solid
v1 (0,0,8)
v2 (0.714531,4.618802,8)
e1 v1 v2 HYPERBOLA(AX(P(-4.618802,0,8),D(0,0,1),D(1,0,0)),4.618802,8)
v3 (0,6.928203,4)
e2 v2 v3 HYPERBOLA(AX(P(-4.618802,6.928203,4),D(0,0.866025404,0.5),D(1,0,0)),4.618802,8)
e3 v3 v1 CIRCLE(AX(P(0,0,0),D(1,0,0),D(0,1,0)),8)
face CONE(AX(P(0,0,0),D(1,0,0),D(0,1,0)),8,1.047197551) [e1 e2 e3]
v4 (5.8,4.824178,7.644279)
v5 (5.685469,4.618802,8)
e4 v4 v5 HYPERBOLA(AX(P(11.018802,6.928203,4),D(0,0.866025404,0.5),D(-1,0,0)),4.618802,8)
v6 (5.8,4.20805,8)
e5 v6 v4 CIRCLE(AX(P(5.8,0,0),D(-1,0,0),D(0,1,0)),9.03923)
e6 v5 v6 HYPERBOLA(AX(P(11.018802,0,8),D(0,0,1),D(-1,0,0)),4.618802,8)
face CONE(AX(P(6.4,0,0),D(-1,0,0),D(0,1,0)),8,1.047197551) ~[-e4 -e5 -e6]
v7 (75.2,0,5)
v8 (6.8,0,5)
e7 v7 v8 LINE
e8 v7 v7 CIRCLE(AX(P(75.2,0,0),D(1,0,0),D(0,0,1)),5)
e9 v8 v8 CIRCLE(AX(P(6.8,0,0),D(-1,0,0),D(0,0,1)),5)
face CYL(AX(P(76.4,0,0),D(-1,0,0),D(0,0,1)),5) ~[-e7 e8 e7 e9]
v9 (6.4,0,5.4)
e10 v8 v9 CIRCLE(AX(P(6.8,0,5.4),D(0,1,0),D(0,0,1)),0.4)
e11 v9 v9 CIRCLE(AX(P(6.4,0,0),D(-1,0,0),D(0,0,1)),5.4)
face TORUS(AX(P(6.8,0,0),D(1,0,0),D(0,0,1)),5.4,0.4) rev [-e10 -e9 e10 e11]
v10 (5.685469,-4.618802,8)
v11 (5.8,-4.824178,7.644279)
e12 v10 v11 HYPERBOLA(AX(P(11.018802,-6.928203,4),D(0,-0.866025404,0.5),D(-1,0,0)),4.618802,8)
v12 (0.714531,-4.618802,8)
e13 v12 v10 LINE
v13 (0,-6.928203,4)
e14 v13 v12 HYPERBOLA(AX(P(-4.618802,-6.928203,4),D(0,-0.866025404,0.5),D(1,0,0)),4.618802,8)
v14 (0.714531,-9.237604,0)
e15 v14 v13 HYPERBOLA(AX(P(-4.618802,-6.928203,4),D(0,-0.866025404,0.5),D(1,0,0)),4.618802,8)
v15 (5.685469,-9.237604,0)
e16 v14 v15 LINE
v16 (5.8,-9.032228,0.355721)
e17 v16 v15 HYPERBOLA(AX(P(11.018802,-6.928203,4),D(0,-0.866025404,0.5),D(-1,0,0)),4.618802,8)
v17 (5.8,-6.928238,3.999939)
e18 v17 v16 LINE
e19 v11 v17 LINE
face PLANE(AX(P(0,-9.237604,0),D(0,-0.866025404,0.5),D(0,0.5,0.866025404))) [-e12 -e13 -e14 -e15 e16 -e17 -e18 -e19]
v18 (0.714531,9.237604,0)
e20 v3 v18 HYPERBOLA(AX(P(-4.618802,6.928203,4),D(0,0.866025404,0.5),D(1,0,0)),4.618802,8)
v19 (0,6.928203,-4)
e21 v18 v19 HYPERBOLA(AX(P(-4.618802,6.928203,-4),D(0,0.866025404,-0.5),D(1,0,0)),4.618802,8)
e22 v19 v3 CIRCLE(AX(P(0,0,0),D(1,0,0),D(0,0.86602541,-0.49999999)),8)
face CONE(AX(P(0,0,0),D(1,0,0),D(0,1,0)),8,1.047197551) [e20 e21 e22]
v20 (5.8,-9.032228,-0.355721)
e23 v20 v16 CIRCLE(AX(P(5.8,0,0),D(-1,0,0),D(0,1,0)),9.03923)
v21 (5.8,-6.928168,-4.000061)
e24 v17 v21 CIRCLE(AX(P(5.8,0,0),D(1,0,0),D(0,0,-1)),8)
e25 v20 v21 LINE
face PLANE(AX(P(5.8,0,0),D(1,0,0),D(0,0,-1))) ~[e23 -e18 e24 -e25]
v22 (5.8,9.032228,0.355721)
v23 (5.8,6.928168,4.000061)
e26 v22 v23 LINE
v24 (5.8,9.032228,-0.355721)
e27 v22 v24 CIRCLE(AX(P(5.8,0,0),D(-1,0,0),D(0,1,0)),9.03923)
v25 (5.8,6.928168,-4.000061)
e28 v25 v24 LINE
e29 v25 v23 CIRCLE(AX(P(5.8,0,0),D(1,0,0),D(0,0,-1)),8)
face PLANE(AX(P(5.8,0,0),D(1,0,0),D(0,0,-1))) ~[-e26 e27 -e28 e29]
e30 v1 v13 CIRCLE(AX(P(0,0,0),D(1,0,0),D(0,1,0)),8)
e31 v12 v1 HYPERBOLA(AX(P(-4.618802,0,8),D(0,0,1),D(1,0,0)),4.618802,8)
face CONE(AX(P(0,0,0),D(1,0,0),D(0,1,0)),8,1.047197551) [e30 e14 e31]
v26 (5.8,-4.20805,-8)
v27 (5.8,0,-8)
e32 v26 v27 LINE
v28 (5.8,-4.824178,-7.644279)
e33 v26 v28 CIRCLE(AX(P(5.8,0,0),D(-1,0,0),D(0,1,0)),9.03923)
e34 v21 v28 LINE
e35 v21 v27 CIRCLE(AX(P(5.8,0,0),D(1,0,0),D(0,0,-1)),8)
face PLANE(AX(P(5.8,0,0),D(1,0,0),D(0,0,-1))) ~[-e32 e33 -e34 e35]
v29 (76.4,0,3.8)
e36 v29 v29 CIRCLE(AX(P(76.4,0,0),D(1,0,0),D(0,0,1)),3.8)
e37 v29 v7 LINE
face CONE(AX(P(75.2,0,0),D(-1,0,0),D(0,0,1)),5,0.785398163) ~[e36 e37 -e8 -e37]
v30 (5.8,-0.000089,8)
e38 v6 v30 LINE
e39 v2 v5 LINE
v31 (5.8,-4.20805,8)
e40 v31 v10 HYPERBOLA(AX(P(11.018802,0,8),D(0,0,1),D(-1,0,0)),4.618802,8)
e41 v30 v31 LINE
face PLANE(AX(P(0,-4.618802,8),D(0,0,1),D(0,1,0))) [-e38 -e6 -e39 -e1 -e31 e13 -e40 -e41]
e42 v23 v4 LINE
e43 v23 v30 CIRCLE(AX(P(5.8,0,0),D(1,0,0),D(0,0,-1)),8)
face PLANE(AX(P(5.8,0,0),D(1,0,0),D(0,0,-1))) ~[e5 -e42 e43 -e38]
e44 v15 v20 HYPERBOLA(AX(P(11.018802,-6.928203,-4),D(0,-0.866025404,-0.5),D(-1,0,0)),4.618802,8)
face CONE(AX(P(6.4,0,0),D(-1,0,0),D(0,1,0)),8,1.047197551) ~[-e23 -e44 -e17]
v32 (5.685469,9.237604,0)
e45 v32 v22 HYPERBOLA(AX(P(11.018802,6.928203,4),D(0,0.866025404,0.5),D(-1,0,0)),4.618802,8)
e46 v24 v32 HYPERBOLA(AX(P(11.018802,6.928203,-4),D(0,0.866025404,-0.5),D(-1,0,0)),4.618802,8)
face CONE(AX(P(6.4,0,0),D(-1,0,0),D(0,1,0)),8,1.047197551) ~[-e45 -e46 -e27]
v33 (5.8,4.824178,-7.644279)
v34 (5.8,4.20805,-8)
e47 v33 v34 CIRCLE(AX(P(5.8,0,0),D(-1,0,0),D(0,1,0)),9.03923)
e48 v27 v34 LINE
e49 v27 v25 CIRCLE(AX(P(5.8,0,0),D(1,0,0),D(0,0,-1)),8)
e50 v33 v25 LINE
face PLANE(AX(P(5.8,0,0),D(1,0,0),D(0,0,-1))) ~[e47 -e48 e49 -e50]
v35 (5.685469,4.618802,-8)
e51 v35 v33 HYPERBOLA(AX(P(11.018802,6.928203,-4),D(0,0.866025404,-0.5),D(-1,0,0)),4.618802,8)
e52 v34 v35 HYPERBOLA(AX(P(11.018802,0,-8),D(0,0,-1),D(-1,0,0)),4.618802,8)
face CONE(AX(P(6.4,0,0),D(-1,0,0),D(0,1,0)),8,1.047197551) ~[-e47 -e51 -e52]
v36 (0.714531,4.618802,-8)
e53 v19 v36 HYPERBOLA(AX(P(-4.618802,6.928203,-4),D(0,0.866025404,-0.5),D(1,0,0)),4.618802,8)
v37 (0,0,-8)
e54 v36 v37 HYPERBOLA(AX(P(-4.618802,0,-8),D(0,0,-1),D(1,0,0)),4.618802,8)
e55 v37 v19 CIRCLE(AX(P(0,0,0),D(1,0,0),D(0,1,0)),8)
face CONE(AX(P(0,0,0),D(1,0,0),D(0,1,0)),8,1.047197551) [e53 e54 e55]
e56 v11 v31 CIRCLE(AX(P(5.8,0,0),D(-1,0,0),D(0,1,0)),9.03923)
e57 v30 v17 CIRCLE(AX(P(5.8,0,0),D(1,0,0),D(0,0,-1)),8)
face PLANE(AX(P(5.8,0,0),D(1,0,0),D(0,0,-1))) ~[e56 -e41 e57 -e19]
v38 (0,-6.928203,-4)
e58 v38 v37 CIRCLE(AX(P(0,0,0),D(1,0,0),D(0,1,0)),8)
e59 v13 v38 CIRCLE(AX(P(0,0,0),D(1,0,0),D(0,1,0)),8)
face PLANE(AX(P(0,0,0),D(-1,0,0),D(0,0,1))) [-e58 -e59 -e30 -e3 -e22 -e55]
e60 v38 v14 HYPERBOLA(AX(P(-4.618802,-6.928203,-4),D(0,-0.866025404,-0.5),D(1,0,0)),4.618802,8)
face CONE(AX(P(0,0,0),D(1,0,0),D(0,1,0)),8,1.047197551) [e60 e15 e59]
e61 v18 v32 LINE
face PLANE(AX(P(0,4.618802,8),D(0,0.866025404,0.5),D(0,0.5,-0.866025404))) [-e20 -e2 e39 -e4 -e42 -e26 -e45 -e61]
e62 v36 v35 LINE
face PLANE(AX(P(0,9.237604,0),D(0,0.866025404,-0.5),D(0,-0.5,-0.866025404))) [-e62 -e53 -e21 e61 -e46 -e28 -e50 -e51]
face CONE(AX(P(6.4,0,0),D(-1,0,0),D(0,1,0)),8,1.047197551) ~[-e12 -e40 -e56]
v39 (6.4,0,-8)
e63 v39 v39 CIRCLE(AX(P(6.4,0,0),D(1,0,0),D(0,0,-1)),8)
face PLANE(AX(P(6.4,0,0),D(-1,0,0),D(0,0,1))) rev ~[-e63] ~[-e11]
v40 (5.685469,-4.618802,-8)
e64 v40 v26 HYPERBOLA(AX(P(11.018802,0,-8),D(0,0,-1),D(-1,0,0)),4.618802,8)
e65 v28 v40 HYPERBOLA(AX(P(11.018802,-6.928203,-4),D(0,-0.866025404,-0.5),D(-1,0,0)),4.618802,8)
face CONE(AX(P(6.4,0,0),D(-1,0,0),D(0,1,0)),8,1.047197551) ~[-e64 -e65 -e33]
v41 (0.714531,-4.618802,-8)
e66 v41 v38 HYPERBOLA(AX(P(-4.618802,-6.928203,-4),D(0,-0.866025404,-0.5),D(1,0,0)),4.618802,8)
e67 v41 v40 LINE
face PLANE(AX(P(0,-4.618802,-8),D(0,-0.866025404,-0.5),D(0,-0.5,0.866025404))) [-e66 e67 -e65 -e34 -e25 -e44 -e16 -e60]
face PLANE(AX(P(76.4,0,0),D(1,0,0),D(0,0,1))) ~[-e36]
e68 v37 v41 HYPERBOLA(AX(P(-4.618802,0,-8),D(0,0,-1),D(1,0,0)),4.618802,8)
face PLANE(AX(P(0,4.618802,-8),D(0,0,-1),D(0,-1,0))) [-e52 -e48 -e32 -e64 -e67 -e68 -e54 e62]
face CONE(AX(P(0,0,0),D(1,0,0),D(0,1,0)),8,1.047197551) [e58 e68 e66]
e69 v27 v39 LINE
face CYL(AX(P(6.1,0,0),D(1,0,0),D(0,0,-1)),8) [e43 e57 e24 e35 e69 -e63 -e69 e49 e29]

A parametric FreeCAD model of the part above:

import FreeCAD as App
import Part
import Sketcher
from FreeCAD import Vector
Q = App.Units.Quantity


def edges_at(feature, points):
    """Names of the edges that pass closest to the given points."""
    edges = feature.Shape.Edges
    near = lambda p: min(range(len(edges)), key=lambda i: edges[i].distToShape(Part.Vertex(*p))[0])
    return sorted({f"Edge{near(p) + 1}" for p in points})

doc = App.newDocument("Part")
body = doc.addObject("PartDesign::Body", "Body")

# Sketch on YZ plane
sketch1 = body.newObject("Sketcher::SketchObject", "Sketch")
sketch1.AttachmentSupport = (doc.getObject("YZ_Plane"), [""])
sketch1.MapMode = "FlatFace"
sketch1.addGeometry([
    Part.LineSegment(Vector(-5, -8, 0), Vector(5, -8, 0)),  # 0
    Part.LineSegment(Vector(5, -8, 0), Vector(9, 0, 0)),  # 1
    Part.LineSegment(Vector(9, 0, 0), Vector(5, 8, 0)),  # 2
    Part.LineSegment(Vector(5, 8, 0), Vector(-5, 8, 0)),  # 3
    Part.LineSegment(Vector(-5, 8, 0), Vector(-9, 0, 0)),  # 4
    Part.LineSegment(Vector(-9, 0, 0), Vector(-5, -8, 0)),  # 5
], False)
sketch1.addConstraint([
    Sketcher.Constraint("Coincident", 0, 2, 1, 1),
    Sketcher.Constraint("Coincident", 1, 2, 2, 1),
    Sketcher.Constraint("Coincident", 2, 2, 3, 1),
    Sketcher.Constraint("Coincident", 3, 2, 4, 1),
    Sketcher.Constraint("Coincident", 4, 2, 5, 1),
    Sketcher.Constraint("Coincident", 5, 2, 0, 1),
    Sketcher.Constraint("Horizontal", 0),
    Sketcher.Constraint("Horizontal", 3),
    Sketcher.Constraint("Symmetric", 0, 2, 3, 2, -1, 1),
    Sketcher.Constraint("Symmetric", 1, 2, 4, 2, -1, 1),
    Sketcher.Constraint("PointOnObject", 1, 2, -1),
    Sketcher.Constraint("Parallel", 2, 5),
    Sketcher.Constraint("Vertical", 0, 2, 2, 2),
    Sketcher.Constraint("Angle", 1, Q("60 deg")),
    Sketcher.Constraint("DistanceY", 0, 2, -1, 1, 8.0),
    Sketcher.Constraint("DistanceX", 0, 1, 0, 2, 9.237604),
])
pad1 = body.newObject("PartDesign::Pad", "Pad")
pad1.Profile = sketch1
pad1.Length = 6.4

# Sketch on XY plane
sketch2 = body.newObject("Sketcher::SketchObject", "Sketch001")
sketch2.AttachmentSupport = (doc.getObject("XY_Plane"), [""])
sketch2.MapMode = "FlatFace"
sketch2.addGeometry([
    Part.LineSegment(Vector(0, 0, 0), Vector(76, 0, 0)),
    Part.LineSegment(Vector(76, 0, 0), Vector(76, 5, 0)),
    Part.LineSegment(Vector(76, 5, 0), Vector(0, 5, 0)),
    Part.LineSegment(Vector(0, 5, 0), Vector(0, 0, 0)),
], False)
sketch2.addConstraint([
    Sketcher.Constraint("Coincident", 0, 2, 1, 1),
    Sketcher.Constraint("Coincident", 1, 2, 2, 1),
    Sketcher.Constraint("Coincident", 2, 2, 3, 1),
    Sketcher.Constraint("Coincident", 3, 2, 0, 1),
    Sketcher.Constraint("Horizontal", 0),
    Sketcher.Constraint("Vertical", 1),
    Sketcher.Constraint("Horizontal", 2),
    Sketcher.Constraint("Vertical", 3),
    Sketcher.Constraint("Coincident", 3, 2, -1, 1),
    Sketcher.Constraint("DistanceY", 1, 1, 1, 2, 5.0),
    Sketcher.Constraint("DistanceX", 0, 1, 0, 2, 76.4),
])
revolution = body.newObject("PartDesign::Revolution", "Revolution")
revolution.Profile = sketch2
revolution.ReferenceAxis = (sketch2, ["H_Axis"])
revolution.Angle = 360

# Sketch on XY plane
sketch3 = body.newObject("Sketcher::SketchObject", "Sketch002")
sketch3.AttachmentSupport = (doc.getObject("XY_Plane"), [""])
sketch3.MapMode = "FlatFace"
sketch3.addGeometry([
    Part.LineSegment(Vector(0, 8, 0), Vector(4, 14, 0)),  # 0
    Part.LineSegment(Vector(4, 14, 0), Vector(4, 19, 0)),  # 1
    Part.LineSegment(Vector(4, 19, 0), Vector(-10, 19, 0)),  # 2
    Part.LineSegment(Vector(-10, 19, 0), Vector(-10, 8, 0)),  # 3
    Part.LineSegment(Vector(-10, 8, 0), Vector(0, 8, 0)),  # 4
], False)
sketch3.addConstraint([
    Sketcher.Constraint("Coincident", 0, 2, 1, 1),
    Sketcher.Constraint("Coincident", 1, 2, 2, 1),
    Sketcher.Constraint("Coincident", 2, 2, 3, 1),
    Sketcher.Constraint("Coincident", 3, 2, 4, 1),
    Sketcher.Constraint("Coincident", 4, 2, 0, 1),
    Sketcher.Constraint("Vertical", 1),
    Sketcher.Constraint("Horizontal", 2),
    Sketcher.Constraint("Vertical", 3),
    Sketcher.Constraint("Horizontal", 4),
    Sketcher.Constraint("PointOnObject", 4, 2, -2),
    Sketcher.Constraint("DistanceX", 4, 1, 4, 2, 10.0),
    Sketcher.Constraint("DistanceY", 1, 1, 1, 2, 5.0),
    Sketcher.Constraint("Angle", 0, Q("60 deg")),
    Sketcher.Constraint("DistanceY", -1, 1, 3, 2, 8.0),
    Sketcher.Constraint("DistanceX", 2, 2, 2, 1, 13.601283),
])
groove = body.newObject("PartDesign::Groove", "Groove")
groove.Profile = sketch3
groove.ReferenceAxis = (sketch3, ["H_Axis"])
groove.Angle = 360

# Sketch on XY plane
sketch4 = body.newObject("Sketcher::SketchObject", "Sketch003")
sketch4.AttachmentSupport = (doc.getObject("XY_Plane"), [""])
sketch4.MapMode = "FlatFace"
sketch4.addGeometry([
    Part.LineSegment(Vector(3, 14, 0), Vector(6, 8, 0)),  # 0
    Part.LineSegment(Vector(6, 8, 0), Vector(13, 8, 0)),  # 1
    Part.LineSegment(Vector(13, 8, 0), Vector(13, 19, 0)),  # 2
    Part.LineSegment(Vector(13, 19, 0), Vector(3, 19, 0)),  # 3
    Part.LineSegment(Vector(3, 19, 0), Vector(3, 14, 0)),  # 4
], False)
sketch4.addConstraint([
    Sketcher.Constraint("Coincident", 0, 2, 1, 1),
    Sketcher.Constraint("Coincident", 1, 2, 2, 1),
    Sketcher.Constraint("Coincident", 2, 2, 3, 1),
    Sketcher.Constraint("Coincident", 3, 2, 4, 1),
    Sketcher.Constraint("Coincident", 4, 2, 0, 1),
    Sketcher.Constraint("Horizontal", 1),
    Sketcher.Constraint("Vertical", 2),
    Sketcher.Constraint("Horizontal", 3),
    Sketcher.Constraint("Vertical", 4),
    Sketcher.Constraint("DistanceX", 3, 2, 3, 1, 10.0),
    Sketcher.Constraint("DistanceY", 4, 2, 4, 1, 5.0),
    Sketcher.Constraint("Angle", 0, Q("-60 deg")),
    Sketcher.Constraint("DistanceY", -1, 1, 0, 2, 8.0),
    Sketcher.Constraint("DistanceX", -1, 1, 0, 2, 6.4),
    Sketcher.Constraint("DistanceX", 1, 1, 1, 2, 6.398717),
])
groove2 = body.newObject("PartDesign::Groove", "Groove001")
groove2.Profile = sketch4
groove2.ReferenceAxis = (sketch4, ["H_Axis"])
groove2.Angle = 360

# Sketch on XY plane
sketch5 = body.newObject("Sketcher::SketchObject", "Sketch004")
sketch5.AttachmentSupport = (doc.getObject("XY_Plane"), [""])
sketch5.MapMode = "FlatFace"
sketch5.addGeometry([
    Part.LineSegment(Vector(5.8, 19.2, 0), Vector(5.8, 8, 0)),
    Part.LineSegment(Vector(5.8, 8, 0), Vector(6.4, 8, 0)),
    Part.LineSegment(Vector(6.4, 8, 0), Vector(6.4, 19.2, 0)),
    Part.LineSegment(Vector(6.4, 19.2, 0), Vector(5.8, 19.2, 0)),
], False)
sketch5.addConstraint([
    Sketcher.Constraint("Coincident", 0, 2, 1, 1),
    Sketcher.Constraint("Coincident", 1, 2, 2, 1),
    Sketcher.Constraint("Coincident", 2, 2, 3, 1),
    Sketcher.Constraint("Coincident", 3, 2, 0, 1),
    Sketcher.Constraint("Vertical", 0),
    Sketcher.Constraint("Horizontal", 1),
    Sketcher.Constraint("Vertical", 2),
    Sketcher.Constraint("Horizontal", 3),
    Sketcher.Constraint("DistanceX", 1, 1, 1, 2, 0.6),
    Sketcher.Constraint("DistanceY", -1, 1, 0, 2, 8.0),
    Sketcher.Constraint("DistanceX", -1, 1, 0, 2, 5.8),
    Sketcher.Constraint("DistanceY", 0, 2, 0, 1, 11.237604),
])
groove3 = body.newObject("PartDesign::Groove", "Groove002")
groove3.Profile = sketch5
groove3.ReferenceAxis = (sketch5, ["H_Axis"])
groove3.Angle = 360
doc.recompute()

chamfer = body.newObject("PartDesign::Chamfer", "Chamfer")
chamfer.Base = (groove3, edges_at(groove3, [(76.4, 0, -5)]))
chamfer.Size = 1.2
doc.recompute()

fillet = body.newObject("PartDesign::Fillet", "Fillet")
fillet.Base = (chamfer, edges_at(chamfer, [(6.4, 0, -5)]))
fillet.Radius = 0.4

doc.recompute()
